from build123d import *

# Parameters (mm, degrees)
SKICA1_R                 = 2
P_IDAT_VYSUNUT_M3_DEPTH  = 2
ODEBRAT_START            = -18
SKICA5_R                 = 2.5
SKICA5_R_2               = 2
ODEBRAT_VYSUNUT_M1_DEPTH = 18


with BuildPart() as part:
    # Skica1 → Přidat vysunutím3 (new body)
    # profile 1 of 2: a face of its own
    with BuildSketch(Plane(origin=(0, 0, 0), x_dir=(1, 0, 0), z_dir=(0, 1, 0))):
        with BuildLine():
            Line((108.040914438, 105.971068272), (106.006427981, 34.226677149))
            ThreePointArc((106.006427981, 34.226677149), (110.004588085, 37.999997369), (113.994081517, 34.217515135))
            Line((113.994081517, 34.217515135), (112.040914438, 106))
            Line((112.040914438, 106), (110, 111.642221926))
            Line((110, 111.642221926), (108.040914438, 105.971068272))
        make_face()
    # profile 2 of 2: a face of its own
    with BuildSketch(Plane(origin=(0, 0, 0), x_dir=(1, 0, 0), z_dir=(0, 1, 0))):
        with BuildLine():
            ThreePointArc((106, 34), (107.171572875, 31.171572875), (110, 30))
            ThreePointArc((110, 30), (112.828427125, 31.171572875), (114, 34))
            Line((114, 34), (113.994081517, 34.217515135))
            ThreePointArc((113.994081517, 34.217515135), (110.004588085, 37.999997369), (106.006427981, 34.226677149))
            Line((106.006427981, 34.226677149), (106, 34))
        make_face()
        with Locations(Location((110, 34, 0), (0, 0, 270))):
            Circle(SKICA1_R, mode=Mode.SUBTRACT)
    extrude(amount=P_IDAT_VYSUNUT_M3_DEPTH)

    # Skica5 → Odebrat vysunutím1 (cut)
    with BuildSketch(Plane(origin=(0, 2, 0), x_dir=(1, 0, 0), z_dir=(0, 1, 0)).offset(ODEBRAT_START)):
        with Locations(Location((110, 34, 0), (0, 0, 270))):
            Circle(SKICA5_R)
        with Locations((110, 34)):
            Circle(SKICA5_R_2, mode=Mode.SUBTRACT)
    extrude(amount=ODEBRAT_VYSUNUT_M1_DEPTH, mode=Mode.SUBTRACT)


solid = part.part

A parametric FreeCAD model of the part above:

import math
import FreeCAD as App
import Part
import Sketcher

V = App.Vector
Q = App.Units.Quantity

doc = App.newDocument("Part")
body = doc.addObject("PartDesign::Body", "Body")

sketch1 = body.newObject("Sketcher::SketchObject", "Sketch")
sketch1.AttachmentSupport = (doc.getObject("XZ_Plane"), [""])
sketch1.MapMode = "FlatFace"
sketch1.addGeometry(Part.LineSegment(V(108.04, -105.97, 0), V(106.01, -34.23, 0)), False)
sketch1.addGeometry(Part.LineSegment(V(106.01, -34.23, 0), V(106, -34, 0)), False)
sketch1.addGeometry(Part.ArcOfCircle(Part.Circle(V(110, -34, 0), V(0, 0, 1), 4), math.radians(90), math.radians(180)), False)
sketch1.addGeometry(Part.ArcOfCircle(Part.Circle(V(110, -34, 0), V(0, 0, 1), 4), math.radians(0), math.radians(90)), False)
sketch1.addGeometry(Part.LineSegment(V(114, -34, 0), V(113.99, -34.22, 0)), False)
sketch1.addGeometry(Part.LineSegment(V(113.99, -34.22, 0), V(112.04, -106, 0)), False)
sketch1.addGeometry(Part.LineSegment(V(112.04, -106, 0), V(110, -111.64, 0)), False)
sketch1.addGeometry(Part.LineSegment(V(110, -111.64, 0), V(108.04, -105.97, 0)), False)
sketch1.addGeometry(Part.Circle(V(110, -34, 0), V(0, 0, 1), 2), False)
sketch1.addConstraint(Sketcher.Constraint("Coincident", 0, 2, 1, 1))
sketch1.addConstraint(Sketcher.Constraint("Coincident", 1, 2, 2, 2))
sketch1.addConstraint(Sketcher.Constraint("Tangent", 2, 1, 3, 2))
sketch1.addConstraint(Sketcher.Constraint("Coincident", 3, 1, 4, 1))
sketch1.addConstraint(Sketcher.Constraint("Coincident", 4, 2, 5, 1))
sketch1.addConstraint(Sketcher.Constraint("Coincident", 5, 2, 6, 1))
sketch1.addConstraint(Sketcher.Constraint("Coincident", 6, 2, 7, 1))
sketch1.addConstraint(Sketcher.Constraint("Coincident", 7, 2, 0, 1))
sketch1.addConstraint(Sketcher.Constraint("Coincident", 8, 3, 2, 3))
sketch1.addConstraint(Sketcher.Constraint("Equal", 2, 3))
sketch1.addConstraint(Sketcher.Constraint("Parallel", 0, 1))
sketch1.addConstraint(Sketcher.Constraint("Parallel", 4, 5))
sketch1.addConstraint(Sketcher.Constraint("Horizontal", 8, 3, 1, 2))
sketch1.addConstraint(Sketcher.Constraint("Horizontal", 1, 2, 3, 1))
sketch1.addConstraint(Sketcher.Constraint("Vertical", 8, 3, 2, 1))
sketch1.addConstraint(Sketcher.Constraint("Vertical", 2, 1, 6, 2))
sketch1.addConstraint(Sketcher.Constraint("Equal", 6, 7))
sketch1.addConstraint(Sketcher.Constraint("Diameter", 8, Q("4 mm")))
sketch1.addConstraint(Sketcher.Constraint("Radius", 2, Q("4 mm")))
sketch1.addConstraint(Sketcher.Constraint("Distance", 6, Q("6 mm")))
sketch1.addConstraint(Sketcher.Constraint("DistanceX", -1, 1, 2, 3, Q("110 mm")))
sketch1.addConstraint(Sketcher.Constraint("DistanceY", 2, 3, -1, 1, Q("34 mm")))
sketch1.addConstraint(Sketcher.Constraint("DistanceY", 5, 2, -1, 1, Q("106 mm")))
sketch1.addConstraint(Sketcher.Constraint("DistanceX", 7, 2, 5, 2, Q("4 mm")))
sketch1.addConstraint(Sketcher.Constraint("Distance", 0, Q("71.773232 mm")))
sketch1.addConstraint(Sketcher.Constraint("Distance", 1, Q("0.226768 mm")))
sketch1.addConstraint(Sketcher.Constraint("DistanceX", -1, 1, 4, 2, Q("113.994082 mm")))
pad1 = body.newObject("PartDesign::Pad", "Pad")
pad1.Profile = sketch1
pad1.Length = 2
pad1.Reversed = True

sketch2 = body.newObject("Sketcher::SketchObject", "Sketch001")
sketch2.AttachmentSupport = (doc.getObject("XZ_Plane"), [""])
sketch2.MapMode = "FlatFace"
sketch2.AttachmentOffset = App.Placement(V(0, 0, 16), App.Rotation())
sketch2.addGeometry(Part.Circle(V(110, -34, 0), V(0, 0, 1), 2.5), False)
sketch2.addGeometry(Part.Circle(V(110, -34, 0), V(0, 0, 1), 2), False)
sketch2.addConstraint(Sketcher.Constraint("Coincident", 1, 3, 0, 3))
sketch2.addConstraint(Sketcher.Constraint("Diameter", 0, Q("5 mm")))
sketch2.addConstraint(Sketcher.Constraint("Diameter", 1, Q("4 mm")))
sketch2.addConstraint(Sketcher.Constraint("DistanceX", -1, 1, 0, 3, Q("110 mm")))
sketch2.addConstraint(Sketcher.Constraint("DistanceY", 0, 3, -1, 1, Q("34 mm")))
pocket1 = body.newObject("PartDesign::Pocket", "Pocket")
pocket1.Profile = sketch2
pocket1.Length = 18

doc.recompute()
